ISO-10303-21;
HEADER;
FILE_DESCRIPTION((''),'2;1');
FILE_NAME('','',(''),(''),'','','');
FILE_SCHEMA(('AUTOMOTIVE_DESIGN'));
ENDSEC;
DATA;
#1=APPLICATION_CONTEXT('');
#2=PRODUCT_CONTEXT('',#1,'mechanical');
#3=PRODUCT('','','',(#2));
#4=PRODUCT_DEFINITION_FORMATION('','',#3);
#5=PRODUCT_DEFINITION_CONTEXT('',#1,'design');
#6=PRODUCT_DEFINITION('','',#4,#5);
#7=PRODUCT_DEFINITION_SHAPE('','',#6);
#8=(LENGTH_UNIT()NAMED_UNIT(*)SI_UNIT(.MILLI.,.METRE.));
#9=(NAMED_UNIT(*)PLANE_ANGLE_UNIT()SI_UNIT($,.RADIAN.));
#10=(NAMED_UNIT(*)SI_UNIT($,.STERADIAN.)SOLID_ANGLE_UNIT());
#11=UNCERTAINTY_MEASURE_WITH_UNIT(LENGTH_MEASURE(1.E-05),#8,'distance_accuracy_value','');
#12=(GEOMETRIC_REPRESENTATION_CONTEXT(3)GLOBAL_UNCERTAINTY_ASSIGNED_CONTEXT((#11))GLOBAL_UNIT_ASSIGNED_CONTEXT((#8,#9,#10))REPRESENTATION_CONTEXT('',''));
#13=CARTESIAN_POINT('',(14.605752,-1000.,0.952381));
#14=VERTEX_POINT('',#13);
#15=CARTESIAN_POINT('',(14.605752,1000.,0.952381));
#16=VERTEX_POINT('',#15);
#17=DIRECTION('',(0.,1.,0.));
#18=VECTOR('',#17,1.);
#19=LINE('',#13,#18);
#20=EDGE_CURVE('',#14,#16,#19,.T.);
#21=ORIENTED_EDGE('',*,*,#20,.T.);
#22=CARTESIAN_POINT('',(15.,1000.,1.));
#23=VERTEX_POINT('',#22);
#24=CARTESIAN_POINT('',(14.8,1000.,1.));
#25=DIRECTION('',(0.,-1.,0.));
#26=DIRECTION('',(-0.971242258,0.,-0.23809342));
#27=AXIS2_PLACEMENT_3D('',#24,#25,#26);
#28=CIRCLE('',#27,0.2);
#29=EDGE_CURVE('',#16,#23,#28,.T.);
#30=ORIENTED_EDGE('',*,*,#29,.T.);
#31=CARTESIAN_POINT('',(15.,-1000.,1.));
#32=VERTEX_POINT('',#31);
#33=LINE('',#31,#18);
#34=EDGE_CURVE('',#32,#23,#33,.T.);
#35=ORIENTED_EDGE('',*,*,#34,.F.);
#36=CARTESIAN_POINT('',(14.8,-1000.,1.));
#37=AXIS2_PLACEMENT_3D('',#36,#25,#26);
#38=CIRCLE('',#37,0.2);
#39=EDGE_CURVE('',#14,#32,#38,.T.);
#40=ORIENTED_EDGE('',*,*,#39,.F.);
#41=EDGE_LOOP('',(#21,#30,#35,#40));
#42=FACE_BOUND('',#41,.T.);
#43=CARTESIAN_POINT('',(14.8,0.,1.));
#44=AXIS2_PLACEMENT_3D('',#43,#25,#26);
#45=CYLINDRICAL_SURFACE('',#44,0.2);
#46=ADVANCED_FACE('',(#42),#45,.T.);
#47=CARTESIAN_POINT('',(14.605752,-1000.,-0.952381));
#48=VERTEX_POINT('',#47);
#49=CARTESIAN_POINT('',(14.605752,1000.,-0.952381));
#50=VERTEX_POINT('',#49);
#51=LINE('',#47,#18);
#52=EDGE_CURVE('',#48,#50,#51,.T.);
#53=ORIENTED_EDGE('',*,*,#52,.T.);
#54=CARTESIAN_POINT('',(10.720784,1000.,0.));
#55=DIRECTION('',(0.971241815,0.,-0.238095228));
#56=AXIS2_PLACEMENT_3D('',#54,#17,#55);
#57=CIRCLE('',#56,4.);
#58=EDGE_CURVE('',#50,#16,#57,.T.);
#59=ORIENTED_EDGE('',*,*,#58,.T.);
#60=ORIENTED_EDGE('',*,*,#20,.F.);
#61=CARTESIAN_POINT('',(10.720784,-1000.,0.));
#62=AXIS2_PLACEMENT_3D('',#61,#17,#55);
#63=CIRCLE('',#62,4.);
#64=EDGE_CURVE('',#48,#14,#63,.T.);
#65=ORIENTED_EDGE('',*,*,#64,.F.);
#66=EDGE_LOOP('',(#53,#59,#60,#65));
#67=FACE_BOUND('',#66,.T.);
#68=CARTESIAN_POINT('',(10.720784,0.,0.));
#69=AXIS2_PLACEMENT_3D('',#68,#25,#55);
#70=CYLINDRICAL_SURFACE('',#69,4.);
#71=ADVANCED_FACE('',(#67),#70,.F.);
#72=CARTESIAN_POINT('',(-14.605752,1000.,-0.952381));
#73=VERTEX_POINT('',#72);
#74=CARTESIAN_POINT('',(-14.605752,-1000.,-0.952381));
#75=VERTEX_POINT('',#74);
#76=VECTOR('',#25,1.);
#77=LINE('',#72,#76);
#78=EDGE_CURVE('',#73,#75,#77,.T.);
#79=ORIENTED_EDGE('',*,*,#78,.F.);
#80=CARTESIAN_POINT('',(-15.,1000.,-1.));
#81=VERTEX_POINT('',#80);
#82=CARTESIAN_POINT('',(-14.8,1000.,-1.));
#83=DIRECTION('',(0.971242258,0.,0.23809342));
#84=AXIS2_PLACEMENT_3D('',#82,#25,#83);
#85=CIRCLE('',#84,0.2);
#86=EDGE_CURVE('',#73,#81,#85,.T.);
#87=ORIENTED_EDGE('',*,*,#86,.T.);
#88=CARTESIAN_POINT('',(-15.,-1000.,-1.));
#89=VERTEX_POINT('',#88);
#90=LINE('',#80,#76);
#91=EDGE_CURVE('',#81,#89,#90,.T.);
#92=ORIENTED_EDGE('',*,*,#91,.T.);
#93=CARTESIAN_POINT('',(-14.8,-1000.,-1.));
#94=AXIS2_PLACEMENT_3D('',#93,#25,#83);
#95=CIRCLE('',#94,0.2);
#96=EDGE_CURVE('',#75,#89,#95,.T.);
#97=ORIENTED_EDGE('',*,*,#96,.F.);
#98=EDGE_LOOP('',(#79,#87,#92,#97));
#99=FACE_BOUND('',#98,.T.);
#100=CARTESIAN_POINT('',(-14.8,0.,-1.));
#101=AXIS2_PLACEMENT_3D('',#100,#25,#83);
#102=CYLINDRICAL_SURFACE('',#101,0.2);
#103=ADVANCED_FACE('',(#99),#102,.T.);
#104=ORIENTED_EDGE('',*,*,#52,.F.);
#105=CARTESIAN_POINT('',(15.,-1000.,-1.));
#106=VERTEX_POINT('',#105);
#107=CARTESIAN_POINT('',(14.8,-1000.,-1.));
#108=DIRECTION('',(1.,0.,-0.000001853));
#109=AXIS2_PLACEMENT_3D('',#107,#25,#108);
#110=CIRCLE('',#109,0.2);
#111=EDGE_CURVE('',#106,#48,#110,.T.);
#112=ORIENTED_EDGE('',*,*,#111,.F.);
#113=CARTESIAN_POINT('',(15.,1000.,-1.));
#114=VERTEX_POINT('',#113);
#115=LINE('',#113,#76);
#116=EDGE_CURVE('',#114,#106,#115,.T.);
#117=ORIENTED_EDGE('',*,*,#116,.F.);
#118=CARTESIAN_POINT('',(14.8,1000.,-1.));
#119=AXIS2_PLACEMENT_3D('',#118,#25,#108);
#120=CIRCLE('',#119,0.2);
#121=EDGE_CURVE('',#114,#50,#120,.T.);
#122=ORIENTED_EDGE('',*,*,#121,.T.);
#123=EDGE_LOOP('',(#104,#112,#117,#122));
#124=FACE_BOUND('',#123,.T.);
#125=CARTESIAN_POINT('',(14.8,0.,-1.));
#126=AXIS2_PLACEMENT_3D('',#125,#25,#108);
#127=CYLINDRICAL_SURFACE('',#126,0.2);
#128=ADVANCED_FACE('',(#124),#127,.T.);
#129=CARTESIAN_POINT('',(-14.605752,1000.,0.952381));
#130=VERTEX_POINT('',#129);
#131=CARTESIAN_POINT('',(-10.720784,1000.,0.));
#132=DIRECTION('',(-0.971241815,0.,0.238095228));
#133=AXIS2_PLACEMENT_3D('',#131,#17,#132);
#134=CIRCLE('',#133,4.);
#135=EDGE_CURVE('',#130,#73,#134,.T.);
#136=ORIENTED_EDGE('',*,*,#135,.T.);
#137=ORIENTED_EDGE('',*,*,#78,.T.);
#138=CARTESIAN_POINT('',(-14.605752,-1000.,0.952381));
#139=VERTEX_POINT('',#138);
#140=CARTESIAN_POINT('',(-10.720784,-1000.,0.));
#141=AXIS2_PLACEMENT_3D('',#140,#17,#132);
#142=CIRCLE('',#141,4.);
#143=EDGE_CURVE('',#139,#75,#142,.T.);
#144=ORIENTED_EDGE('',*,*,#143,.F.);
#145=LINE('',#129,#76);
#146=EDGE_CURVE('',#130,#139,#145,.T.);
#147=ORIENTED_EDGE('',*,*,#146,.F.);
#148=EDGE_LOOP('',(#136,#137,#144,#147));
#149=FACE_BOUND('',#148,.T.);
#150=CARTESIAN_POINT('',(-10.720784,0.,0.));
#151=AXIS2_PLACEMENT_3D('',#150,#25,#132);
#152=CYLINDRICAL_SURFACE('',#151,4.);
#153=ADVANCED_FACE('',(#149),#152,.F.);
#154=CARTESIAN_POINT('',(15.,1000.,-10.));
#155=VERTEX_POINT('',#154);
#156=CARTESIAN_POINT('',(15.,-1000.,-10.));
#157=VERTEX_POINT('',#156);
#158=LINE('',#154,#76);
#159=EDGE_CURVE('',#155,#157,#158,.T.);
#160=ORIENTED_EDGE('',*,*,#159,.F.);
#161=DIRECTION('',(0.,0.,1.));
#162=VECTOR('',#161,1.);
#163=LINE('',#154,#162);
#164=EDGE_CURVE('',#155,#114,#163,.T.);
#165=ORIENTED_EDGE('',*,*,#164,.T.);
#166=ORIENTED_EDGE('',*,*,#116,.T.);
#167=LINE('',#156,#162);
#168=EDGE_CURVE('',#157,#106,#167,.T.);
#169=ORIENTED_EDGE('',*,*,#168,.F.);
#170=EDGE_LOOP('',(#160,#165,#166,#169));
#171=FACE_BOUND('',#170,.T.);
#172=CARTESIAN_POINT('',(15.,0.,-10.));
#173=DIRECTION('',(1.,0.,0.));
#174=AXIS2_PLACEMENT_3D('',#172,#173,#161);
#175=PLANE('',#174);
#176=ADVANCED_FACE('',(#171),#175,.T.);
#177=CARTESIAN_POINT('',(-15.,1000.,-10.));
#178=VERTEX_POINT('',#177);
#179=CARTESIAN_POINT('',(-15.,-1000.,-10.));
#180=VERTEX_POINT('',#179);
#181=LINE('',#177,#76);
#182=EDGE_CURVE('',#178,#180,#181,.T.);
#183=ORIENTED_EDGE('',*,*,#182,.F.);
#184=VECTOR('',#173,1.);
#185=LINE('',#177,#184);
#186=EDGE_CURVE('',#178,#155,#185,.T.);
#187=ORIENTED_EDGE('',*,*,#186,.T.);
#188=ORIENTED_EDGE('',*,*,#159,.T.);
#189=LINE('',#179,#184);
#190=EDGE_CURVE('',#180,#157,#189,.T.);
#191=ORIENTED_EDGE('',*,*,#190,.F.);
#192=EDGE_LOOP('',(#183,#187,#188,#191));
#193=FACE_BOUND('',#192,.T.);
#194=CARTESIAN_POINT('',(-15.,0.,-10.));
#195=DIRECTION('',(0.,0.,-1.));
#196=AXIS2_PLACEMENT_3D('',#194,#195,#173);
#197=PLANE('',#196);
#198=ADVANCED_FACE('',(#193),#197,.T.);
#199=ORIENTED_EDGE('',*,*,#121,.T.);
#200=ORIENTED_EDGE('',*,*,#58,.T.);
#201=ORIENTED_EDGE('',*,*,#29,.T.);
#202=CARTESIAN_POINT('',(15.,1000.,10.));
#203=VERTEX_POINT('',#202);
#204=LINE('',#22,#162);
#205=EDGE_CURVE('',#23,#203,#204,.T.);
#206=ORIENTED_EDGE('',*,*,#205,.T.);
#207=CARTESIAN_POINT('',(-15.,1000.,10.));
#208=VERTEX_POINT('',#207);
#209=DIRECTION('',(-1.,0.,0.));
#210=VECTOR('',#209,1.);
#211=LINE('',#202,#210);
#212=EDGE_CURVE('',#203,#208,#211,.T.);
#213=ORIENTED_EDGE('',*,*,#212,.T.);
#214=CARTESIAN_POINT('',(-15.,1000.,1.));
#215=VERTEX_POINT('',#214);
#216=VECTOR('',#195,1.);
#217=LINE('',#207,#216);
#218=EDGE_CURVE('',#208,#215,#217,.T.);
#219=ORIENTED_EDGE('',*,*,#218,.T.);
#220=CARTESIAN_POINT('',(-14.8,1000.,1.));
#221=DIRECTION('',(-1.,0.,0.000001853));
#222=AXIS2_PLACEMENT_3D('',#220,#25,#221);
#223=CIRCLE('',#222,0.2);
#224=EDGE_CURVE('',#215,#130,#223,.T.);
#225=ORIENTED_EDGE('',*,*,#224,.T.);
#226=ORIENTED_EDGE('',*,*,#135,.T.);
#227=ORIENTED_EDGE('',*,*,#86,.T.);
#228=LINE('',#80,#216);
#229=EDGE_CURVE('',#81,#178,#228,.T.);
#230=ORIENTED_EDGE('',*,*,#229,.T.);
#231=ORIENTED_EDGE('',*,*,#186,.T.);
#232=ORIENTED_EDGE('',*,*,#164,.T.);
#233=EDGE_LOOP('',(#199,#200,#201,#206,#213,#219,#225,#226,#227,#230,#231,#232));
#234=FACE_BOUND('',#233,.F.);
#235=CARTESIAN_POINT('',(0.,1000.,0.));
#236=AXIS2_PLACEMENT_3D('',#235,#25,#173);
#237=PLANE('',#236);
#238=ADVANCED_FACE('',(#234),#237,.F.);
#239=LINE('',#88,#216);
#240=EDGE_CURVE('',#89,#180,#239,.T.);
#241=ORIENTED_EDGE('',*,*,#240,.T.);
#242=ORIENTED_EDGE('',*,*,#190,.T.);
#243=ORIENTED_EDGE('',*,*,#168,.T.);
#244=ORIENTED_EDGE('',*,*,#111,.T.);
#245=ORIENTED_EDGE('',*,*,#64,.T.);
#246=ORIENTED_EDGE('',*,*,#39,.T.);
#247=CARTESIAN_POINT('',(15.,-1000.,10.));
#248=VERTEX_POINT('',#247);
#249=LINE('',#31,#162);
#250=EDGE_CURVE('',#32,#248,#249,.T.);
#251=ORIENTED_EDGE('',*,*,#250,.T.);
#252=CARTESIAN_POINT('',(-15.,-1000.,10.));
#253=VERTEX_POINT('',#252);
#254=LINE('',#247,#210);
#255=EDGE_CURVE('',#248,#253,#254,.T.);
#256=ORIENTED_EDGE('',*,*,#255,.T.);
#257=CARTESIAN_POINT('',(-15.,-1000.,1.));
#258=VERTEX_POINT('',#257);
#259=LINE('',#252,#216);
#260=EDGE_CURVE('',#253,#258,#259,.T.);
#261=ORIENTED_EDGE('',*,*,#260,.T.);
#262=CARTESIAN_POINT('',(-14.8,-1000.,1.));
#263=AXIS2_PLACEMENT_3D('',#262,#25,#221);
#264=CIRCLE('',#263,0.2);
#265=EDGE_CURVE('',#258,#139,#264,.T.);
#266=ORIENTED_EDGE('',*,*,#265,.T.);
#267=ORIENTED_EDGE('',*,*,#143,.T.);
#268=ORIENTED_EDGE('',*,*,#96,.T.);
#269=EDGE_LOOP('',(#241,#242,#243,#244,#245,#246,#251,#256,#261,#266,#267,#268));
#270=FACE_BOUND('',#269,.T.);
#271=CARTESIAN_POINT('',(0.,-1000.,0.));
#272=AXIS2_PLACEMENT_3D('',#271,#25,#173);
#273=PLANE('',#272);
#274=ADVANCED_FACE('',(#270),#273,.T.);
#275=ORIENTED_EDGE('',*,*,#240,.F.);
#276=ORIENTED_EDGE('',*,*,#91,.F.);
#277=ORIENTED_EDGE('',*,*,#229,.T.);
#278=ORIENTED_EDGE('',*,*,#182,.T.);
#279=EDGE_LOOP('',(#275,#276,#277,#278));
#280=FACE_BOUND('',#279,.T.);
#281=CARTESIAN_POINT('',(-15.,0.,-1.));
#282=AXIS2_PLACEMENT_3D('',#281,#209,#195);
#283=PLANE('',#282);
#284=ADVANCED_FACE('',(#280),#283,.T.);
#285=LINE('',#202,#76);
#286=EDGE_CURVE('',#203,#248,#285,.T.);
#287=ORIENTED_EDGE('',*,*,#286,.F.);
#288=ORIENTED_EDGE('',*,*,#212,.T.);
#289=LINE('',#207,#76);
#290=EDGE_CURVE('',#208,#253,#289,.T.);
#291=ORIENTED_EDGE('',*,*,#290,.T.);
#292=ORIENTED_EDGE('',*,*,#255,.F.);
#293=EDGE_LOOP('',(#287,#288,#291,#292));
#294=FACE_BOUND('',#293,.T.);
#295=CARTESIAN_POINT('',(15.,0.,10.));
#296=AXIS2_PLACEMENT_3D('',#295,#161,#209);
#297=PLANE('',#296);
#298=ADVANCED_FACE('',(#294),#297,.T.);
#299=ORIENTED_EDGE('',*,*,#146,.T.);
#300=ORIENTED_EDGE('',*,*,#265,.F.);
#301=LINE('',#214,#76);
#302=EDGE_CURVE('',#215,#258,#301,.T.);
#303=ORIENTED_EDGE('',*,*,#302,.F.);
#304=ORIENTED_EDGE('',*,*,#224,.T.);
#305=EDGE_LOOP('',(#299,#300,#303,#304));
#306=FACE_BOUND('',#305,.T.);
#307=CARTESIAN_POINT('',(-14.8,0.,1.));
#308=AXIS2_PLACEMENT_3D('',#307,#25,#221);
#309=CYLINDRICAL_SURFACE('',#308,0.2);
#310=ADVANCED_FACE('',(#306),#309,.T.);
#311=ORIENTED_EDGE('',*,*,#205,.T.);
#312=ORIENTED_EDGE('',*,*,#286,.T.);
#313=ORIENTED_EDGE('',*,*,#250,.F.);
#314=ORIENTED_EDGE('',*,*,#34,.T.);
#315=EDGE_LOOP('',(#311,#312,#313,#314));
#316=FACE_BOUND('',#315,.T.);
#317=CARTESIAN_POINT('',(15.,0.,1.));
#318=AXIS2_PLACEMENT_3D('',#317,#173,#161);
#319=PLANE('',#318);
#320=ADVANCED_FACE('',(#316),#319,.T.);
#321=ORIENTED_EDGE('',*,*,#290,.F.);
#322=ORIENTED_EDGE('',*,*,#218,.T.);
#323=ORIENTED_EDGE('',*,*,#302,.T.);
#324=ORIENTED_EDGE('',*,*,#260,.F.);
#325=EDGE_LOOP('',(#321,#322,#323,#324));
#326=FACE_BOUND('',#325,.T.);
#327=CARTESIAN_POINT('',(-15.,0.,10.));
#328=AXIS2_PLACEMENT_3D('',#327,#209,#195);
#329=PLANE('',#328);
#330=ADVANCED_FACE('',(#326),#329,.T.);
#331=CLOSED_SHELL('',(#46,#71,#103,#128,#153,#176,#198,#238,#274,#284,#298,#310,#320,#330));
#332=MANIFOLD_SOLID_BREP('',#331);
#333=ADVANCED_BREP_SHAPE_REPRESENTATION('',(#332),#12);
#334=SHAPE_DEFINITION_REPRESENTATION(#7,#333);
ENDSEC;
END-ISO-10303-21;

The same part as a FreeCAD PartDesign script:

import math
import FreeCAD as App
import Part
import Sketcher

doc = App.newDocument("Part")
body = doc.addObject("PartDesign::Body", "Body")

sketch1 = doc.addObject("Sketcher::SketchObject", "Sketch")
body.addObject(sketch1)
sketch1.AttachmentSupport = (doc.XZ_Plane, [""])
sketch1.MapMode = "FlatFace"
sketch1.addGeometry([
    Part.LineSegment(App.Vector(15, 1, 0), App.Vector(15, 10, 0)),
    Part.LineSegment(App.Vector(15, 10, 0), App.Vector(-15, 10, 0)),
    Part.LineSegment(App.Vector(-15, 10, 0), App.Vector(-15, 1, 0)),
    Part.ArcOfCircle(Part.Circle(App.Vector(-14.8, 1, 0), App.Vector(0, 0, 1), 0.2), math.radians(179.999894), math.radians(346.22596)),
    Part.ArcOfCircle(Part.Circle(App.Vector(-10.720784, 0, 0), App.Vector(0, 0, 1), 4), math.radians(-166.225854), math.radians(166.225854)),
    Part.ArcOfCircle(Part.Circle(App.Vector(-14.8, -1, 0), App.Vector(0, 0, 1), 0.2), math.radians(13.77404), math.radians(180.000106)),
    Part.LineSegment(App.Vector(-15, -1, 0), App.Vector(-15, -10, 0)),
    Part.LineSegment(App.Vector(-15, -10, 0), App.Vector(15, -10, 0)),
    Part.LineSegment(App.Vector(15, -10, 0), App.Vector(15, -1, 0)),
    Part.ArcOfCircle(Part.Circle(App.Vector(14.8, -1, 0), App.Vector(0, 0, 1), 0.2), math.radians(-0.000106), math.radians(166.22596)),
    Part.ArcOfCircle(Part.Circle(App.Vector(10.720784, 0, 0), App.Vector(0, 0, 1), 4), math.radians(13.774146), math.radians(346.225854)),
    Part.ArcOfCircle(Part.Circle(App.Vector(14.8, 1, 0), App.Vector(0, 0, 1), 0.2), math.radians(-166.22596), math.radians(0.000106)),
], False)
sketch1.addConstraint([
    Sketcher.Constraint("Coincident", 0, 2, 1, 1),
    Sketcher.Constraint("Coincident", 1, 2, 2, 1),
    Sketcher.Constraint("Tangent", 2, 2, 3, 1),
    Sketcher.Constraint("Tangent", 3, 2, 4, 2),
    Sketcher.Constraint("Tangent", 4, 1, 5, 1),
    Sketcher.Constraint("Tangent", 5, 2, 6, 1),
    Sketcher.Constraint("Coincident", 6, 2, 7, 1),
    Sketcher.Constraint("Coincident", 7, 2, 8, 1),
    Sketcher.Constraint("Tangent", 8, 2, 9, 1),
    Sketcher.Constraint("Tangent", 9, 2, 10, 2),
    Sketcher.Constraint("Tangent", 10, 1, 11, 1),
    Sketcher.Constraint("Tangent", 11, 2, 0, 1),
    Sketcher.Constraint("Vertical", 0),
    Sketcher.Constraint("Horizontal", 1),
    Sketcher.Constraint("Vertical", 2),
    Sketcher.Constraint("Vertical", 6),
    Sketcher.Constraint("Horizontal", 7),
    Sketcher.Constraint("Vertical", 8),
    Sketcher.Constraint("Equal", 3, 5),
    Sketcher.Constraint("Equal", 5, 9),
    Sketcher.Constraint("Equal", 4, 10),
    Sketcher.Constraint("Equal", 9, 11),
    Sketcher.Constraint("Symmetric", 3, 3, 9, 3, -1, 1),
    Sketcher.Constraint("Symmetric", 5, 3, 11, 3, -1, 1),
    Sketcher.Constraint("Symmetric", 5, 3, 9, 3, -2),
    Sketcher.Constraint("Equal", 2, 6),
    Sketcher.Constraint("Radius", 4, 4.0),
    Sketcher.Constraint("Radius", 3, 0.2),
    Sketcher.Constraint("DistanceX", 1, 2, 1, 1, 30.0),
    Sketcher.Constraint("DistanceY", 0, 1, 0, 2, 9.0),
    Sketcher.Constraint("DistanceY", -1, 1, 3, 3, 1.0),
])
pad1 = doc.addObject("PartDesign::Pad", "Pad")
body.addObject(pad1)
pad1.Profile = sketch1
pad1.Length = 2000
pad1.Midplane = True

doc.recompute()
